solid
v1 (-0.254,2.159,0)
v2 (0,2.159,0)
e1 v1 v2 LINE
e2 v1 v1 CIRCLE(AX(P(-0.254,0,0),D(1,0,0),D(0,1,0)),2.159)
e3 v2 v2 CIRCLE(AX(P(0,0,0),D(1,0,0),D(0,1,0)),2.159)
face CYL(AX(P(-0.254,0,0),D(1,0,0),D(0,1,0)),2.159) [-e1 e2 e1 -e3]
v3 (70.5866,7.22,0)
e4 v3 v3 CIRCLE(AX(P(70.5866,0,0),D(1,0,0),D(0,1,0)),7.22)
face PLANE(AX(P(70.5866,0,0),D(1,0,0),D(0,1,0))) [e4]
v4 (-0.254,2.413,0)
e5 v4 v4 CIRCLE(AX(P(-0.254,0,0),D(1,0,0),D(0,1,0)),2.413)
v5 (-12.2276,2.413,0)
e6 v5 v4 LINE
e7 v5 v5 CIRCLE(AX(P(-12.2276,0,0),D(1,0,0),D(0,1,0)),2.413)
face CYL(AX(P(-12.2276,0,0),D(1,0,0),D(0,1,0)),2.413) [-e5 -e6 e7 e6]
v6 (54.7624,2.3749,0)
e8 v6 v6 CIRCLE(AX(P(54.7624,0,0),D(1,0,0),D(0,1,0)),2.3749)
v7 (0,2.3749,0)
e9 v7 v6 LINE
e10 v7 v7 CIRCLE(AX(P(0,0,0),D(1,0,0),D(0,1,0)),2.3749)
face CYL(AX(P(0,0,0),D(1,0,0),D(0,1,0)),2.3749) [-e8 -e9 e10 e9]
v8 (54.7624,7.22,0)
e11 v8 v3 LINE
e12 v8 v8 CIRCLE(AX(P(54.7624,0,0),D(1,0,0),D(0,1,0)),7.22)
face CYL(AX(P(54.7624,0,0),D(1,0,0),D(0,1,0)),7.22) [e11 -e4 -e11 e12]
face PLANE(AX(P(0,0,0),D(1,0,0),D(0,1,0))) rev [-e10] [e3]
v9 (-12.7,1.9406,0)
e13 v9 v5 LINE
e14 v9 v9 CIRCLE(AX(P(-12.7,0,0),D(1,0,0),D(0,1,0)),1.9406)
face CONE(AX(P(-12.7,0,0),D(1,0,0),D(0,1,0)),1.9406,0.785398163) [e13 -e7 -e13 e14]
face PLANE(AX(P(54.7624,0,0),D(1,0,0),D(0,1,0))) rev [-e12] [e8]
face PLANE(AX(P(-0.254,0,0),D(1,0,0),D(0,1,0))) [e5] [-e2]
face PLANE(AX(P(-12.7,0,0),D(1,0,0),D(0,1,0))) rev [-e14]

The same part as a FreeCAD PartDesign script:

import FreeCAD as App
import Part
import Sketcher
Q = App.Units.Quantity


def add_polygon(sketch, points):
    """Adds a closed chain of lines whose ends are joined by coincident constraints."""
    first, n = sketch.GeometryCount, len(points)
    for a, b in zip(points, points[1:] + points[:1]):
        sketch.addGeometry(Part.LineSegment(App.Vector(*a, 0), App.Vector(*b, 0)), False)
    for i in range(n):
        sketch.addConstraint(Sketcher.Constraint("Coincident", first + i, 2, first + (i + 1) % n, 1))

doc = App.newDocument("Part")
body = doc.addObject("PartDesign::Body", "Body")

# Sketch on XY plane
sketch1 = body.newObject("Sketcher::SketchObject", "Sketch")
sketch1.AttachmentSupport = (doc.getObject("XY_Plane"), [""])
sketch1.MapMode = "FlatFace"
add_polygon(sketch1, [(0, 0), (70.6, 0), (70.6, 7.2), (54.8, 7.2), (54.8, 2.4), (0, 2.4)])  # lines 0-5
sketch1.addConstraint(Sketcher.Constraint("Horizontal", 0))
sketch1.addConstraint(Sketcher.Constraint("Vertical", 1))
sketch1.addConstraint(Sketcher.Constraint("Horizontal", 2))
sketch1.addConstraint(Sketcher.Constraint("Vertical", 3))
sketch1.addConstraint(Sketcher.Constraint("Horizontal", 4))
sketch1.addConstraint(Sketcher.Constraint("Vertical", 5))
sketch1.addConstraint(Sketcher.Constraint("Coincident", 5, 2, -1, 1))
sketch1.addConstraint(Sketcher.Constraint("DistanceX", 0, 1, 0, 2, Q("2.779 in")))
sketch1.addConstraint(Sketcher.Constraint("DistanceX", 2, 2, 2, 1, Q("0.623 in")))
sketch1.addConstraint(Sketcher.Constraint("DistanceY", 5, 2, 5, 1, Q("0.0935 in")))
sketch1.addConstraint(Sketcher.Constraint("DistanceY", 1, 1, 1, 2, Q("7.22 mm")))
revolution = body.newObject("PartDesign::Revolution", "Revolution")
revolution.Profile = sketch1
revolution.ReferenceAxis = (sketch1, ["H_Axis"])
revolution.Angle = 360

# Sketch on XY plane
sketch2 = body.newObject("Sketcher::SketchObject", "Sketch001")
sketch2.AttachmentSupport = (doc.getObject("XY_Plane"), [""])
sketch2.MapMode = "FlatFace"
add_polygon(sketch2, [(-12.7, 0), (0, 0), (0, 2.4), (-12.2, 2.4), (-12.7, 1.9)])  # lines 0-4
sketch2.addConstraint(Sketcher.Constraint("Horizontal", 0))
sketch2.addConstraint(Sketcher.Constraint("Vertical", 1))
sketch2.addConstraint(Sketcher.Constraint("Horizontal", 2))
sketch2.addConstraint(Sketcher.Constraint("Vertical", 4))
sketch2.addConstraint(Sketcher.Constraint("Coincident", 0, 2, -1, 1))
sketch2.addConstraint(Sketcher.Constraint("DistanceX", 0, 1, 0, 2, Q("0.5 in")))
sketch2.addConstraint(Sketcher.Constraint("Angle", 3, Q("-135 deg")))
sketch2.addConstraint(Sketcher.Constraint("DistanceY", 1, 1, 1, 2, Q("0.095 in")))
sketch2.addConstraint(Sketcher.Constraint("DistanceX", 2, 2, 2, 1, Q("0.4814 in")))
revolution2 = body.newObject("PartDesign::Revolution", "Revolution001")
revolution2.Profile = sketch2
revolution2.ReferenceAxis = (sketch2, ["H_Axis"])
revolution2.Angle = 360

# Sketch on XY plane
sketch3 = body.newObject("Sketcher::SketchObject", "Sketch002")
sketch3.AttachmentSupport = (doc.getObject("XY_Plane"), [""])
sketch3.MapMode = "FlatFace"
add_polygon(sketch3, [(-0.25, 2.67), (-0.25, 2.16), (0, 2.16), (0, 2.67)])  # lines 0-3
sketch3.addConstraint(Sketcher.Constraint("Vertical", 0))
sketch3.addConstraint(Sketcher.Constraint("Horizontal", 1))
sketch3.addConstraint(Sketcher.Constraint("Vertical", 2))
sketch3.addConstraint(Sketcher.Constraint("Horizontal", 3))
sketch3.addConstraint(Sketcher.Constraint("PointOnObject", 1, 2, -2))
sketch3.addConstraint(Sketcher.Constraint("DistanceX", 1, 1, 1, 2, Q("0.01 in")))
sketch3.addConstraint(Sketcher.Constraint("DistanceY", 0, 2, 0, 1, Q("0.02 in")))
sketch3.addConstraint(Sketcher.Constraint("DistanceY", -1, 1, 0, 2, Q("0.085 in")))
groove = body.newObject("PartDesign::Groove", "Groove")
groove.Profile = sketch3
groove.ReferenceAxis = (sketch3, ["H_Axis"])
groove.Angle = 360

doc.recompute()
